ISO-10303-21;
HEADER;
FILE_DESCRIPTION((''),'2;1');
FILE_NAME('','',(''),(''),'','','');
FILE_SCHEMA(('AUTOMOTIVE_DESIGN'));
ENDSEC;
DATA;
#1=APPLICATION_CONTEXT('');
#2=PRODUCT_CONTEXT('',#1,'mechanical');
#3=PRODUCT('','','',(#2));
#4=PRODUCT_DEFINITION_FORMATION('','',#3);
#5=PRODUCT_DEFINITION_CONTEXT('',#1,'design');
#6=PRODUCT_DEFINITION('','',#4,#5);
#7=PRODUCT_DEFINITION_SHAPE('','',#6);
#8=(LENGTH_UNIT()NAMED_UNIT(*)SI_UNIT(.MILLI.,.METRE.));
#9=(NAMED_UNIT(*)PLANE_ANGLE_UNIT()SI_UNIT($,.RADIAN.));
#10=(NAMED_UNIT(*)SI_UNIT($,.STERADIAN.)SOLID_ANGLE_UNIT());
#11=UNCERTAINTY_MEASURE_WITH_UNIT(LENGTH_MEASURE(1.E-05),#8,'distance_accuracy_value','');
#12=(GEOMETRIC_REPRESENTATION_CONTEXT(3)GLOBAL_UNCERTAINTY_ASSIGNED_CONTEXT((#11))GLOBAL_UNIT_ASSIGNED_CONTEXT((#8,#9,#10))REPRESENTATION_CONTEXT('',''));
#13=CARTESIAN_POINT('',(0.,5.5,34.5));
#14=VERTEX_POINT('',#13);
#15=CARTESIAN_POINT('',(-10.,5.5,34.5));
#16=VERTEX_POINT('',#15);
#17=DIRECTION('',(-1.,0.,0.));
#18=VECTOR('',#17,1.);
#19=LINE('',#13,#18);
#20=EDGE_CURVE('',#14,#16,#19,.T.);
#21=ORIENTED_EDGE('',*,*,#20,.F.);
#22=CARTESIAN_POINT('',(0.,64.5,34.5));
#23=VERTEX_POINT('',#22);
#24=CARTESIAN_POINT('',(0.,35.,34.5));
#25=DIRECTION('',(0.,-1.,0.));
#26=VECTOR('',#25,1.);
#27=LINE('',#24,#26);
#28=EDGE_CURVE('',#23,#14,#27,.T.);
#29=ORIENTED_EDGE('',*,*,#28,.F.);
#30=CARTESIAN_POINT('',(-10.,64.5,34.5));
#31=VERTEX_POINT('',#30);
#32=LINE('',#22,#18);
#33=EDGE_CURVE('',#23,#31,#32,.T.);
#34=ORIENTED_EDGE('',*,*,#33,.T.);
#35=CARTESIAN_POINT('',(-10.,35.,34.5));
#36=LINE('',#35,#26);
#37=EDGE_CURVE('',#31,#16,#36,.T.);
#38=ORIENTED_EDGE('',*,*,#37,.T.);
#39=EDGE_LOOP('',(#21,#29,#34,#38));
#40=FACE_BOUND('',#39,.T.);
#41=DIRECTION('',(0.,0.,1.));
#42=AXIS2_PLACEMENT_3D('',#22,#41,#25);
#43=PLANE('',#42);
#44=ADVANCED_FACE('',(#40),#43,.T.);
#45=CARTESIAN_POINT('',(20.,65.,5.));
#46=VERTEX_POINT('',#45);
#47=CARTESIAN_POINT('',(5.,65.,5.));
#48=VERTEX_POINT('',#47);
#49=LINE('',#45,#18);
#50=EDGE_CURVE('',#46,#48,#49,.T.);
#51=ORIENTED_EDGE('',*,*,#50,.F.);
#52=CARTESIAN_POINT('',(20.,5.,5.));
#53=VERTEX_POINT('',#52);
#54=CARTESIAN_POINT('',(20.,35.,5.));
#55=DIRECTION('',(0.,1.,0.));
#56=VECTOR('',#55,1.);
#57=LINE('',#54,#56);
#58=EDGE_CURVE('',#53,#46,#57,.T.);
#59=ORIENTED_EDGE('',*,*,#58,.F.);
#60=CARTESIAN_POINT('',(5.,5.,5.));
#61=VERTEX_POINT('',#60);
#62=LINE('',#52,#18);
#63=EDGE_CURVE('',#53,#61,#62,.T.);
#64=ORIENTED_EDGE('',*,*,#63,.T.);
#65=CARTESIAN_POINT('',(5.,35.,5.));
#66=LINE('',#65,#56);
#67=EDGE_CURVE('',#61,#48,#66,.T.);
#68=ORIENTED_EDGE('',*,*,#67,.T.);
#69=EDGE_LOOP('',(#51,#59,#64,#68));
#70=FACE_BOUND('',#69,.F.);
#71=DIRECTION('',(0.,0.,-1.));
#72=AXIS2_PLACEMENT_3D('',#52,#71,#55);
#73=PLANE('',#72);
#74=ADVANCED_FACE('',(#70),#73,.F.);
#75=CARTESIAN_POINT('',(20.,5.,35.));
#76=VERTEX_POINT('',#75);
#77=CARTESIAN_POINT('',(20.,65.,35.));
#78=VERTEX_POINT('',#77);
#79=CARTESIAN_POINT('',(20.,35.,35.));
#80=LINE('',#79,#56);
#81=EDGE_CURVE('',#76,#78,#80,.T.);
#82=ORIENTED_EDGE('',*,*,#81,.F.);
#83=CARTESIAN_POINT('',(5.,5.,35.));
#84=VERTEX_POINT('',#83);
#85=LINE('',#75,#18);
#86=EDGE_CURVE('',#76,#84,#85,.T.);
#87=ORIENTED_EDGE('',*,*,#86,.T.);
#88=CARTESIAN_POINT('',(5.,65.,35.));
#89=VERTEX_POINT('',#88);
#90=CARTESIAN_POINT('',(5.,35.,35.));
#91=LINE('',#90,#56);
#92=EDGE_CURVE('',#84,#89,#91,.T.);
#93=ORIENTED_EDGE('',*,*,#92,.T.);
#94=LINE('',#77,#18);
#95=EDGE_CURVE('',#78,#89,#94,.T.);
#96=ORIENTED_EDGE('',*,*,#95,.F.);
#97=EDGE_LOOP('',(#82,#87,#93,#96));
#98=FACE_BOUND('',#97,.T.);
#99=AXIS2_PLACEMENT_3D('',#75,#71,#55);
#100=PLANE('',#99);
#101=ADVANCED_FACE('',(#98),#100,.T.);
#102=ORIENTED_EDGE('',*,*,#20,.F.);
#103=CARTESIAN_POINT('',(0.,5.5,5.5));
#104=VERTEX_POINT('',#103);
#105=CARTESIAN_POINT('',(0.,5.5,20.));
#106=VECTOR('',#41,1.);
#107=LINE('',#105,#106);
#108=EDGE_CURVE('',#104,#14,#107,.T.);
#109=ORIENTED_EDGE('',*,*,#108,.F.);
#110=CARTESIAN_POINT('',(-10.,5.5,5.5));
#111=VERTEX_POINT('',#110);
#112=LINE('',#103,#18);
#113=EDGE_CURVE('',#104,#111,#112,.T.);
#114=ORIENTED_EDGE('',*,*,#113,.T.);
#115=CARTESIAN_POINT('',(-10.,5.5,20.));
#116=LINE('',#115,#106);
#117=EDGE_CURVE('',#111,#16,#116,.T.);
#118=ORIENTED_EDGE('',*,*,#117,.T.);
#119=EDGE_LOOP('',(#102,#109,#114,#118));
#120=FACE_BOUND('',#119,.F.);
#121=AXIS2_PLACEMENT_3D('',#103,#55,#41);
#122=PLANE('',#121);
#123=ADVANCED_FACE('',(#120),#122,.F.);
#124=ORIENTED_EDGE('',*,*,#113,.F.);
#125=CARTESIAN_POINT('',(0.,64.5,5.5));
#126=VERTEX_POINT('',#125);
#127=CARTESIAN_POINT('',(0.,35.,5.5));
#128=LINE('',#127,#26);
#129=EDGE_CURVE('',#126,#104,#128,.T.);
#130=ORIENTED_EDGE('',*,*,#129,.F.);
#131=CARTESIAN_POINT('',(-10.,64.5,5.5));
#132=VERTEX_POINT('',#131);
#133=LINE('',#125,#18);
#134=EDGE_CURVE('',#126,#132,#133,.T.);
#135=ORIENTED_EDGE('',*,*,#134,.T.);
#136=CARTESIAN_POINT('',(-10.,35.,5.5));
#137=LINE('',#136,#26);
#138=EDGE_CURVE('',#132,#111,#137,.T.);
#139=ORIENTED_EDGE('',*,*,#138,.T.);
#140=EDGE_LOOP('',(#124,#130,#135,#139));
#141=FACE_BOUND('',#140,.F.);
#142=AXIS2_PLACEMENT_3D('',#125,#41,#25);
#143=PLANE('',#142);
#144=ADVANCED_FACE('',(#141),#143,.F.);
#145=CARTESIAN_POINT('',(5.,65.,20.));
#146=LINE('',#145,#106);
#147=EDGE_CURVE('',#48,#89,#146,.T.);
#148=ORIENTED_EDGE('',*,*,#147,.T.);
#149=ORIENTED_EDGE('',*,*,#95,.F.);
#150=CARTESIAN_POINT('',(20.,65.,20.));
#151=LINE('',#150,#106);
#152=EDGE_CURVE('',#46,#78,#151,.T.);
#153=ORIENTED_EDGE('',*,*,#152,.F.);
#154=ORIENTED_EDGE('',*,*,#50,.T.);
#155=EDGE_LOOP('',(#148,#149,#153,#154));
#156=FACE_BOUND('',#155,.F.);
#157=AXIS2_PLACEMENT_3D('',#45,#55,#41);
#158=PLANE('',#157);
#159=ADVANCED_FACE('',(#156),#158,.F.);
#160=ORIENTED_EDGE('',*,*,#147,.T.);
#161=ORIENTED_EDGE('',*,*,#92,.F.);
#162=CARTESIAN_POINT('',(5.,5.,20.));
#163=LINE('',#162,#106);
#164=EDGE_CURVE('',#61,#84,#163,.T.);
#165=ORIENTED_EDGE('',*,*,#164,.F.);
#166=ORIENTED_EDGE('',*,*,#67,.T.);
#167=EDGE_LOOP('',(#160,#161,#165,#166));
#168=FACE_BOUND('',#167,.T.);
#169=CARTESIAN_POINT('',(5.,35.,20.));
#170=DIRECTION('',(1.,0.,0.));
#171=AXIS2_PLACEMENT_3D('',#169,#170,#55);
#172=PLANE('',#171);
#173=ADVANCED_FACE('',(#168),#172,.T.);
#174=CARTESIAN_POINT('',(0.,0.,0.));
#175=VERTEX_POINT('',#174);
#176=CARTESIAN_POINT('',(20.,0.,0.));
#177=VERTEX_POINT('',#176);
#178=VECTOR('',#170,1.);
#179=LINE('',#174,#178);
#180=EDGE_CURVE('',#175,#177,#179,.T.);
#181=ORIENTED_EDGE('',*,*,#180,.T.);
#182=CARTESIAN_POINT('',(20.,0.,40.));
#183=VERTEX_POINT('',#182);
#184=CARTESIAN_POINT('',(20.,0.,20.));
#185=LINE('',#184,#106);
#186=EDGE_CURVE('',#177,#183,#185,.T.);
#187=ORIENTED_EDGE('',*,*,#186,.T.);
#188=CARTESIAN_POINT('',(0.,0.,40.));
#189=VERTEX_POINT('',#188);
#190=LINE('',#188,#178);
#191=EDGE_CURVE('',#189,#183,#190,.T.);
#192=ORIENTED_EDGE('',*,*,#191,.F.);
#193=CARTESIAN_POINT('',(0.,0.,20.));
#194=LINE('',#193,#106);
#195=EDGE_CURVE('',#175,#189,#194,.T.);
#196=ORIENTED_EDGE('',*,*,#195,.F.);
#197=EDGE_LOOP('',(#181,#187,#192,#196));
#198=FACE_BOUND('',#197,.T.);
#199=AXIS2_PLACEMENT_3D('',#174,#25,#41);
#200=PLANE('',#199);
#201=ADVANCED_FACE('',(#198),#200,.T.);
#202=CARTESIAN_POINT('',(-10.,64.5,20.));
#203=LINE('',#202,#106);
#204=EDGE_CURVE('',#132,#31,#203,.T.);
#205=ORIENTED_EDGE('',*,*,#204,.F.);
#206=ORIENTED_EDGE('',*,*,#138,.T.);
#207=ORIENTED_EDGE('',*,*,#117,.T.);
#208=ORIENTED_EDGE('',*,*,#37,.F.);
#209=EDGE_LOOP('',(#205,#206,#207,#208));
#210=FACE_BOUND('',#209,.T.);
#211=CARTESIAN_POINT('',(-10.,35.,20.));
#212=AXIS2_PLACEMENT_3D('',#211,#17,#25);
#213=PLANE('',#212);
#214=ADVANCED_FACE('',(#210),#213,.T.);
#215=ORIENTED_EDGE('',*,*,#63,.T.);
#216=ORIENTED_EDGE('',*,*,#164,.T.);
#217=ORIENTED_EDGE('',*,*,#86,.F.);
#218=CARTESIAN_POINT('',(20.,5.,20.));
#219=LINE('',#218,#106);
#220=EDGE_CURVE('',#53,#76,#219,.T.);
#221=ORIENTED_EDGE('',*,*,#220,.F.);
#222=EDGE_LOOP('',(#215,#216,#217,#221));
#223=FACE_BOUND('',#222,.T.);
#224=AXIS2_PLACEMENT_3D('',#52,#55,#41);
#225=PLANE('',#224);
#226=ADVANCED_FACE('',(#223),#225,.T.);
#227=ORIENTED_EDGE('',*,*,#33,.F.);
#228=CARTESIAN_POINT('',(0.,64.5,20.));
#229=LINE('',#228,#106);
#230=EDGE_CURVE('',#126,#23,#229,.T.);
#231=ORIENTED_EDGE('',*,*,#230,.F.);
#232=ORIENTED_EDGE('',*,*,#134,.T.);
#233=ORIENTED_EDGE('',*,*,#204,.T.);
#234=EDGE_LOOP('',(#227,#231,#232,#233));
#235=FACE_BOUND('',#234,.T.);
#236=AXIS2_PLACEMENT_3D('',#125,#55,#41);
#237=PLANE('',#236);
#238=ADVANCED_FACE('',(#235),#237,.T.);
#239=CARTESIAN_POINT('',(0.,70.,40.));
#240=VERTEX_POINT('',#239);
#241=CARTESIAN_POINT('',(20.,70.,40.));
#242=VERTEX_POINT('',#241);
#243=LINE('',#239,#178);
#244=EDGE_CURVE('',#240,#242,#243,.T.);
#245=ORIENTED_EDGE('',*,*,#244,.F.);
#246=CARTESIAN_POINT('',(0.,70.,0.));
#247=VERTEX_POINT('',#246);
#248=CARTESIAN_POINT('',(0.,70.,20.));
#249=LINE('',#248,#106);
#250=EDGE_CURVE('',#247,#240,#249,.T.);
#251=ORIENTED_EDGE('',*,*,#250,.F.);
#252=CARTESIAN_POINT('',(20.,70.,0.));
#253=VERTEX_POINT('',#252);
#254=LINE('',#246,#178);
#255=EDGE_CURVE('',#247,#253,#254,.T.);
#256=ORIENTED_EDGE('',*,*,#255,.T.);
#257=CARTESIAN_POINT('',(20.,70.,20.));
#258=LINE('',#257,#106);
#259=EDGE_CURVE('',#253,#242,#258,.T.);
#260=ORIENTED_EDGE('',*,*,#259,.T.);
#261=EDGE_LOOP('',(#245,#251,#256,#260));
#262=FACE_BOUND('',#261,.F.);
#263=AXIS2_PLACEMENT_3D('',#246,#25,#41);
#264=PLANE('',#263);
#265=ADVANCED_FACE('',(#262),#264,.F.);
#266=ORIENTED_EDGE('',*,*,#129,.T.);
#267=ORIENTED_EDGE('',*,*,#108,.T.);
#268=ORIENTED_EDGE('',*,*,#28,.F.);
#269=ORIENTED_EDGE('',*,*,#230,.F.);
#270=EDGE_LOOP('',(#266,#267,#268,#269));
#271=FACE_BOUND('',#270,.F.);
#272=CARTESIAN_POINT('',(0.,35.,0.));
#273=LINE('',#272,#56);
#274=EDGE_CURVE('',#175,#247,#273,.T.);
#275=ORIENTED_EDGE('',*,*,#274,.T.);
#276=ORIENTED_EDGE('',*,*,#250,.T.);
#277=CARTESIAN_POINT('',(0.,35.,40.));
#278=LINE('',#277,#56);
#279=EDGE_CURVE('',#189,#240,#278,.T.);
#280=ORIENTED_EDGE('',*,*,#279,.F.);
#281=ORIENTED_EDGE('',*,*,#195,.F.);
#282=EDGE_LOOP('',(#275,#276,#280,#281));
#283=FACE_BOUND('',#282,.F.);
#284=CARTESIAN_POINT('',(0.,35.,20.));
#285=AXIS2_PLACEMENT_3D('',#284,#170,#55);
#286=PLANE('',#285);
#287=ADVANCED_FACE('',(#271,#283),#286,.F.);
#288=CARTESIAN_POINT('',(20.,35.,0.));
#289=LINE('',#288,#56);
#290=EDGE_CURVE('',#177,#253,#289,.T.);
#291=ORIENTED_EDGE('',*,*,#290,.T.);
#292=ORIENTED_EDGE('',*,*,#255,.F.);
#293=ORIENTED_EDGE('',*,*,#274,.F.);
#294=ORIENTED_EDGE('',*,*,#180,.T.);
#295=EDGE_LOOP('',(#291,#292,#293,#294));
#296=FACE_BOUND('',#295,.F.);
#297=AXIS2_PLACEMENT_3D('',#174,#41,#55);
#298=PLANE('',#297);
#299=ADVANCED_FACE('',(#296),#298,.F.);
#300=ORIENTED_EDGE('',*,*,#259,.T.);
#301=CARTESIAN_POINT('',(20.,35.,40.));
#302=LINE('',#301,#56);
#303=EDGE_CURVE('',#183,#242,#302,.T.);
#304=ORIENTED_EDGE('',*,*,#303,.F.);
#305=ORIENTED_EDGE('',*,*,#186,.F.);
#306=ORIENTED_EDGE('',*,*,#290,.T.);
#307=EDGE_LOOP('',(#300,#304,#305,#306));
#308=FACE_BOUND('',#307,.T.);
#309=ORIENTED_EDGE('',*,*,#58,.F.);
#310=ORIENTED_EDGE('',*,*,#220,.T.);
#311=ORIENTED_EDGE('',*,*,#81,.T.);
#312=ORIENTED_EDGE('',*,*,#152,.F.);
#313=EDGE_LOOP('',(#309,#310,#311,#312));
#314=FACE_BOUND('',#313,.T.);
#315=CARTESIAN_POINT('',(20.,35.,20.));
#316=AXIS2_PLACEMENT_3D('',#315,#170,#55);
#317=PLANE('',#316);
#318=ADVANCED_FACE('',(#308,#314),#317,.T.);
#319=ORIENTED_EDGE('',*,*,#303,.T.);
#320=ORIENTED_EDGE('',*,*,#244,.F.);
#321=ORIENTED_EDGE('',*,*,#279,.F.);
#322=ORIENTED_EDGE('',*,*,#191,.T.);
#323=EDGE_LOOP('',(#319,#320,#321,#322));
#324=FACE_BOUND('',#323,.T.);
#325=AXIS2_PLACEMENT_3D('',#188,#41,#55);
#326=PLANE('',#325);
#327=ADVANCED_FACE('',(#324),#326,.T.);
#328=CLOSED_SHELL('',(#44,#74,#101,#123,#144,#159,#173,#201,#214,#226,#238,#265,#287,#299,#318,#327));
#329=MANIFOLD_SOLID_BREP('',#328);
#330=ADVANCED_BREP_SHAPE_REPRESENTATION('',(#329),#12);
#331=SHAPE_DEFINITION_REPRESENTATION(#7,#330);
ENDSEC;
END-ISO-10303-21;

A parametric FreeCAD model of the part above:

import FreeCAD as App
import Part
import Sketcher
Q = App.Units.Quantity


def add_polygon(sketch, points):
    """Adds a closed chain of lines whose ends are joined by coincident constraints."""
    first, n = sketch.GeometryCount, len(points)
    for a, b in zip(points, points[1:] + points[:1]):
        sketch.addGeometry(Part.LineSegment(App.Vector(*a, 0), App.Vector(*b, 0)), False)
    for i in range(n):
        sketch.addConstraint(Sketcher.Constraint("Coincident", first + i, 2, first + (i + 1) % n, 1))

doc = App.newDocument("Part")
body = doc.addObject("PartDesign::Body", "Body")

# Sketch on YZ plane
sketch1 = body.newObject("Sketcher::SketchObject", "Sketch")
sketch1.AttachmentSupport = (doc.getObject("YZ_Plane"), [""])
sketch1.MapMode = "FlatFace"
add_polygon(sketch1, [(0, 40), (0, 0), (70, 0), (70, 40)])  # lines 0-3
sketch1.addConstraint([
    Sketcher.Constraint("Vertical", 0),
    Sketcher.Constraint("Horizontal", 1),
    Sketcher.Constraint("Vertical", 2),
    Sketcher.Constraint("Horizontal", 3),
    Sketcher.Constraint("Coincident", 0, 2, -1, 1),
    Sketcher.Constraint("DistanceX", 1, 1, 1, 2, Q("70 mm")),
    Sketcher.Constraint("DistanceY", 0, 2, 0, 1, Q("40 mm")),
])
pad1 = body.newObject("PartDesign::Pad", "Pad")
pad1.Profile = sketch1
pad1.Length = 20

# Sketch on YZ plane
sketch2 = body.newObject("Sketcher::SketchObject", "Sketch001")
sketch2.AttachmentSupport = (doc.getObject("YZ_Plane"), [""])
sketch2.MapMode = "FlatFace"
sketch2.AttachmentOffset = App.Placement(App.Vector(0, 0, 20), App.Rotation())
add_polygon(sketch2, [(5, 35), (5, 5), (65, 5), (65, 35)])  # lines 0-3
sketch2.addConstraint([
    Sketcher.Constraint("Vertical", 0),
    Sketcher.Constraint("Horizontal", 1),
    Sketcher.Constraint("Vertical", 2),
    Sketcher.Constraint("Horizontal", 3),
    Sketcher.Constraint("DistanceX", 1, 1, 1, 2, Q("60 mm")),
    Sketcher.Constraint("DistanceY", 0, 2, 0, 1, Q("30 mm")),
    Sketcher.Constraint("DistanceX", -1, 1, 0, 2, Q("5 mm")),
    Sketcher.Constraint("DistanceY", -1, 1, 0, 2, Q("5 mm")),
])
pocket1 = body.newObject("PartDesign::Pocket", "Pocket")
pocket1.Profile = sketch2
pocket1.Length = 15

# Sketch on YZ plane
sketch3 = body.newObject("Sketcher::SketchObject", "Sketch002")
sketch3.AttachmentSupport = (doc.getObject("YZ_Plane"), [""])
sketch3.MapMode = "FlatFace"
add_polygon(sketch3, [(64.5, 34.5), (64.5, 5.5), (5.5, 5.5), (5.5, 34.5)])  # lines 0-3
sketch3.addConstraint([
    Sketcher.Constraint("Vertical", 0),
    Sketcher.Constraint("Horizontal", 1),
    Sketcher.Constraint("Vertical", 2),
    Sketcher.Constraint("Horizontal", 3),
    Sketcher.Constraint("DistanceX", 1, 2, 1, 1, Q("59 mm")),
    Sketcher.Constraint("DistanceY", 0, 2, 0, 1, Q("29 mm")),
    Sketcher.Constraint("DistanceX", -1, 1, 0, 2, Q("64.5 mm")),
    Sketcher.Constraint("DistanceY", -1, 1, 0, 2, Q("5.5 mm")),
])
pad2 = body.newObject("PartDesign::Pad", "Pad001")
pad2.Profile = sketch3
pad2.Length = 10
pad2.Reversed = True

doc.recompute()
